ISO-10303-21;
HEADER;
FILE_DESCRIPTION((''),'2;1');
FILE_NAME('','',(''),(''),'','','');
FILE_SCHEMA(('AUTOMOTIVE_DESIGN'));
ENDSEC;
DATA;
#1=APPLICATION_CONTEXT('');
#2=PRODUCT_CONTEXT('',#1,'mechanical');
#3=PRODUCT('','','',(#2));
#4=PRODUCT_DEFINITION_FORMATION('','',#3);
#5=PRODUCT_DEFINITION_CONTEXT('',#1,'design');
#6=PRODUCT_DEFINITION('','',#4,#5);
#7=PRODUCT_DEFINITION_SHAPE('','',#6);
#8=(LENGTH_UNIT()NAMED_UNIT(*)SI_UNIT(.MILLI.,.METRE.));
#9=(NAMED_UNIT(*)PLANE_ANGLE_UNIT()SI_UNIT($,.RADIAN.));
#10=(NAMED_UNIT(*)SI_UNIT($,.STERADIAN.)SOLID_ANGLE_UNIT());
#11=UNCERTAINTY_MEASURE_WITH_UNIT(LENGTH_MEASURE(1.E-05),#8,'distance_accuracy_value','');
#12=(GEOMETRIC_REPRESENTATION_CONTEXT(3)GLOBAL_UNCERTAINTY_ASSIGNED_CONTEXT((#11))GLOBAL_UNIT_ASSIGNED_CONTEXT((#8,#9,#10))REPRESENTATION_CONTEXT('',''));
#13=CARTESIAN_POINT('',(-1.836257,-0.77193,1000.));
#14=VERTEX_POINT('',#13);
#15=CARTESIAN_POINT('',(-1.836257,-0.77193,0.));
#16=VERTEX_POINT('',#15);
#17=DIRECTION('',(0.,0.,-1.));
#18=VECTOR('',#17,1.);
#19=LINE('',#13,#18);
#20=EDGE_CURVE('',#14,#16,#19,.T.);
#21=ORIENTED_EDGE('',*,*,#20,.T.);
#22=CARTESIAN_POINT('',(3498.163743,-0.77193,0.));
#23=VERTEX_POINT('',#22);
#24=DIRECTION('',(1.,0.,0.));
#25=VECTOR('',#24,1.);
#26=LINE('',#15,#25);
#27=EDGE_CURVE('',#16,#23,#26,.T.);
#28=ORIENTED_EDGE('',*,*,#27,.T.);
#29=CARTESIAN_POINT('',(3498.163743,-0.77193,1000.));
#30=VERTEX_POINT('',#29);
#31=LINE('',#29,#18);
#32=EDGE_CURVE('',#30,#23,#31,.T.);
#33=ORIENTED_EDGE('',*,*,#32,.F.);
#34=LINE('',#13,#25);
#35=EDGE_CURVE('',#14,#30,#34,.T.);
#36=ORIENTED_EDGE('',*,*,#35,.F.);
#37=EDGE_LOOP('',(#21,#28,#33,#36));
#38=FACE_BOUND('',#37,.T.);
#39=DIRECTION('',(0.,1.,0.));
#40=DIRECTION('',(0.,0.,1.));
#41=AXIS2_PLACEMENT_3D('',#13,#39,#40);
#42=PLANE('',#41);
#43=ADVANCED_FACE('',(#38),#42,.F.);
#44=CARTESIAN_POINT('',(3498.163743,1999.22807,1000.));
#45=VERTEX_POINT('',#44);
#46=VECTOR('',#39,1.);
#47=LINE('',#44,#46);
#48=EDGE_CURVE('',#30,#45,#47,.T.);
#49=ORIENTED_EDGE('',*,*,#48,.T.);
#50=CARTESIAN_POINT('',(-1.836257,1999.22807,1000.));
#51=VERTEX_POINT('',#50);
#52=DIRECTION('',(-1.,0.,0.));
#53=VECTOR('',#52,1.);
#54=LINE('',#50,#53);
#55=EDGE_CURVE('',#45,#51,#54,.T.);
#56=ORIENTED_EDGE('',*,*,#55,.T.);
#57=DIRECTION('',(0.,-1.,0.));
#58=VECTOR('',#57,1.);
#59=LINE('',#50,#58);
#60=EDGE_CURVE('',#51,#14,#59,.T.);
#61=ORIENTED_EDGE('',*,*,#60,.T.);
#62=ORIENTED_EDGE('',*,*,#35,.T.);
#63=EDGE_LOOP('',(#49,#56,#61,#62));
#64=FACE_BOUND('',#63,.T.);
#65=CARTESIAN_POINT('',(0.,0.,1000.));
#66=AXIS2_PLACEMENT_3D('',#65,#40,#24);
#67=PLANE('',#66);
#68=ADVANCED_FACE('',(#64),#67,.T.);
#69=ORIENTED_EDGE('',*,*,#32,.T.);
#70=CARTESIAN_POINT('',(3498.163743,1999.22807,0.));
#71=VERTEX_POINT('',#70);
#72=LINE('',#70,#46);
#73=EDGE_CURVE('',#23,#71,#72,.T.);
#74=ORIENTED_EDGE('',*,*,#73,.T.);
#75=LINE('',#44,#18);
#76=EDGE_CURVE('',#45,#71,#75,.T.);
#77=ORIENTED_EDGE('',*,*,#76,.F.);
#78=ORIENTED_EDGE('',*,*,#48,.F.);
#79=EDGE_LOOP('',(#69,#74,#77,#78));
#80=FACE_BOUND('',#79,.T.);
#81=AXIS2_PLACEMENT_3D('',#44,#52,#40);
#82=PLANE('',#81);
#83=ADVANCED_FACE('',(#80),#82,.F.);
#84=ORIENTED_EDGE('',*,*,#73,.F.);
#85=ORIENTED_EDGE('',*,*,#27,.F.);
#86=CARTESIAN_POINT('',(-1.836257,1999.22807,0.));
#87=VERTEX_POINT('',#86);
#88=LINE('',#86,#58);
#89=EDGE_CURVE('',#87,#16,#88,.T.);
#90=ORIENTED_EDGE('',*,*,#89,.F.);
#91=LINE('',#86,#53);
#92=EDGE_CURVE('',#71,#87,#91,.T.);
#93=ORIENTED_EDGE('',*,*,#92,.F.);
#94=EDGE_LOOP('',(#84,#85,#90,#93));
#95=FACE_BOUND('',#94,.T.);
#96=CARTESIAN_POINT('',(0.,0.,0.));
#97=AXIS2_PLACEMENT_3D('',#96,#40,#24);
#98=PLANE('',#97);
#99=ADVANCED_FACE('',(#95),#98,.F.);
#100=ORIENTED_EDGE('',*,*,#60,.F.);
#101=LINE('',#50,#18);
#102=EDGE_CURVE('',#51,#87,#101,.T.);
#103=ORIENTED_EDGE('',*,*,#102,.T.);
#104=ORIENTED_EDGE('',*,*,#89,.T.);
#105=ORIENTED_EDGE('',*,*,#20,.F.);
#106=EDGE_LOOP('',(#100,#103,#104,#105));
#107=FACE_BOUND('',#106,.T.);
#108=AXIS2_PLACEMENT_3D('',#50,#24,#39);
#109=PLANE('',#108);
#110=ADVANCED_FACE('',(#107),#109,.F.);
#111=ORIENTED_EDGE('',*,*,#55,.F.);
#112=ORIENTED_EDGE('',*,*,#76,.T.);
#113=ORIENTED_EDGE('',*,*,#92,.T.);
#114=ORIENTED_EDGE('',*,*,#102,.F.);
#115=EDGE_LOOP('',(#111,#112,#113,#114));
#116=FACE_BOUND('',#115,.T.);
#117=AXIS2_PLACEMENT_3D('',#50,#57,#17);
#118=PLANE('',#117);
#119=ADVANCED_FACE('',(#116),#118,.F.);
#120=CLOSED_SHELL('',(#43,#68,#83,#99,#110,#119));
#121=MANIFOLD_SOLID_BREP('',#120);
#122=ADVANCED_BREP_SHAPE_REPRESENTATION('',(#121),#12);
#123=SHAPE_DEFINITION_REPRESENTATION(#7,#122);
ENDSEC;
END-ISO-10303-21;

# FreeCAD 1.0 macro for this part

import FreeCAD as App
import Part
import Sketcher

doc = App.newDocument("Part")
params = doc.addObject("Spreadsheet::Sheet", "Params")
for row, (alias, value) in enumerate([
    ("sketch1_width", "3500 mm"),
    ("sketch1_height", "2000 mm"),
    ("pad1_length", "1000 mm"),
], start=1):
    params.set(f"A{row}", alias)
    params.set(f"B{row}", "=" + value)
    params.setAlias(f"B{row}", alias)

body = doc.addObject("PartDesign::Body", "Body")

sketch1 = body.newObject("Sketcher::SketchObject", "Sketch")
sketch1.AttachmentSupport = (doc.getObject("XY_Plane"), [""])
sketch1.MapMode = "FlatFace"
sketch1.addGeometry([
    Part.LineSegment(App.Vector(-2, 1999, 0), App.Vector(-2, -1, 0)),
    Part.LineSegment(App.Vector(-2, -1, 0), App.Vector(3498, -1, 0)),
    Part.LineSegment(App.Vector(3498, -1, 0), App.Vector(3498, 1999, 0)),
    Part.LineSegment(App.Vector(3498, 1999, 0), App.Vector(-2, 1999, 0)),
], False)
sketch1.addConstraint([
    Sketcher.Constraint("Coincident", 0, 2, 1, 1),
    Sketcher.Constraint("Coincident", 1, 2, 2, 1),
    Sketcher.Constraint("Coincident", 2, 2, 3, 1),
    Sketcher.Constraint("Coincident", 3, 2, 0, 1),
    Sketcher.Constraint("Vertical", 0),
    Sketcher.Constraint("Horizontal", 1),
    Sketcher.Constraint("Vertical", 2),
    Sketcher.Constraint("Horizontal", 3),
    Sketcher.Constraint("DistanceX", 1, 1, 1, 2, 3500.0),
    Sketcher.Constraint("DistanceY", 0, 2, 0, 1, 2000.0),
    Sketcher.Constraint("DistanceY", 0, 2, -1, 1, 0.77193),
    Sketcher.Constraint("DistanceX", 0, 2, -1, 1, 1.836257),
])
sketch1.setExpression("Constraints[8]", "Params.sketch1_width")
sketch1.setExpression("Constraints[9]", "Params.sketch1_height")
pad1 = body.newObject("PartDesign::Pad", "Pad")
pad1.Profile = sketch1
pad1.setExpression("Length", "Params.pad1_length")

doc.recompute()
